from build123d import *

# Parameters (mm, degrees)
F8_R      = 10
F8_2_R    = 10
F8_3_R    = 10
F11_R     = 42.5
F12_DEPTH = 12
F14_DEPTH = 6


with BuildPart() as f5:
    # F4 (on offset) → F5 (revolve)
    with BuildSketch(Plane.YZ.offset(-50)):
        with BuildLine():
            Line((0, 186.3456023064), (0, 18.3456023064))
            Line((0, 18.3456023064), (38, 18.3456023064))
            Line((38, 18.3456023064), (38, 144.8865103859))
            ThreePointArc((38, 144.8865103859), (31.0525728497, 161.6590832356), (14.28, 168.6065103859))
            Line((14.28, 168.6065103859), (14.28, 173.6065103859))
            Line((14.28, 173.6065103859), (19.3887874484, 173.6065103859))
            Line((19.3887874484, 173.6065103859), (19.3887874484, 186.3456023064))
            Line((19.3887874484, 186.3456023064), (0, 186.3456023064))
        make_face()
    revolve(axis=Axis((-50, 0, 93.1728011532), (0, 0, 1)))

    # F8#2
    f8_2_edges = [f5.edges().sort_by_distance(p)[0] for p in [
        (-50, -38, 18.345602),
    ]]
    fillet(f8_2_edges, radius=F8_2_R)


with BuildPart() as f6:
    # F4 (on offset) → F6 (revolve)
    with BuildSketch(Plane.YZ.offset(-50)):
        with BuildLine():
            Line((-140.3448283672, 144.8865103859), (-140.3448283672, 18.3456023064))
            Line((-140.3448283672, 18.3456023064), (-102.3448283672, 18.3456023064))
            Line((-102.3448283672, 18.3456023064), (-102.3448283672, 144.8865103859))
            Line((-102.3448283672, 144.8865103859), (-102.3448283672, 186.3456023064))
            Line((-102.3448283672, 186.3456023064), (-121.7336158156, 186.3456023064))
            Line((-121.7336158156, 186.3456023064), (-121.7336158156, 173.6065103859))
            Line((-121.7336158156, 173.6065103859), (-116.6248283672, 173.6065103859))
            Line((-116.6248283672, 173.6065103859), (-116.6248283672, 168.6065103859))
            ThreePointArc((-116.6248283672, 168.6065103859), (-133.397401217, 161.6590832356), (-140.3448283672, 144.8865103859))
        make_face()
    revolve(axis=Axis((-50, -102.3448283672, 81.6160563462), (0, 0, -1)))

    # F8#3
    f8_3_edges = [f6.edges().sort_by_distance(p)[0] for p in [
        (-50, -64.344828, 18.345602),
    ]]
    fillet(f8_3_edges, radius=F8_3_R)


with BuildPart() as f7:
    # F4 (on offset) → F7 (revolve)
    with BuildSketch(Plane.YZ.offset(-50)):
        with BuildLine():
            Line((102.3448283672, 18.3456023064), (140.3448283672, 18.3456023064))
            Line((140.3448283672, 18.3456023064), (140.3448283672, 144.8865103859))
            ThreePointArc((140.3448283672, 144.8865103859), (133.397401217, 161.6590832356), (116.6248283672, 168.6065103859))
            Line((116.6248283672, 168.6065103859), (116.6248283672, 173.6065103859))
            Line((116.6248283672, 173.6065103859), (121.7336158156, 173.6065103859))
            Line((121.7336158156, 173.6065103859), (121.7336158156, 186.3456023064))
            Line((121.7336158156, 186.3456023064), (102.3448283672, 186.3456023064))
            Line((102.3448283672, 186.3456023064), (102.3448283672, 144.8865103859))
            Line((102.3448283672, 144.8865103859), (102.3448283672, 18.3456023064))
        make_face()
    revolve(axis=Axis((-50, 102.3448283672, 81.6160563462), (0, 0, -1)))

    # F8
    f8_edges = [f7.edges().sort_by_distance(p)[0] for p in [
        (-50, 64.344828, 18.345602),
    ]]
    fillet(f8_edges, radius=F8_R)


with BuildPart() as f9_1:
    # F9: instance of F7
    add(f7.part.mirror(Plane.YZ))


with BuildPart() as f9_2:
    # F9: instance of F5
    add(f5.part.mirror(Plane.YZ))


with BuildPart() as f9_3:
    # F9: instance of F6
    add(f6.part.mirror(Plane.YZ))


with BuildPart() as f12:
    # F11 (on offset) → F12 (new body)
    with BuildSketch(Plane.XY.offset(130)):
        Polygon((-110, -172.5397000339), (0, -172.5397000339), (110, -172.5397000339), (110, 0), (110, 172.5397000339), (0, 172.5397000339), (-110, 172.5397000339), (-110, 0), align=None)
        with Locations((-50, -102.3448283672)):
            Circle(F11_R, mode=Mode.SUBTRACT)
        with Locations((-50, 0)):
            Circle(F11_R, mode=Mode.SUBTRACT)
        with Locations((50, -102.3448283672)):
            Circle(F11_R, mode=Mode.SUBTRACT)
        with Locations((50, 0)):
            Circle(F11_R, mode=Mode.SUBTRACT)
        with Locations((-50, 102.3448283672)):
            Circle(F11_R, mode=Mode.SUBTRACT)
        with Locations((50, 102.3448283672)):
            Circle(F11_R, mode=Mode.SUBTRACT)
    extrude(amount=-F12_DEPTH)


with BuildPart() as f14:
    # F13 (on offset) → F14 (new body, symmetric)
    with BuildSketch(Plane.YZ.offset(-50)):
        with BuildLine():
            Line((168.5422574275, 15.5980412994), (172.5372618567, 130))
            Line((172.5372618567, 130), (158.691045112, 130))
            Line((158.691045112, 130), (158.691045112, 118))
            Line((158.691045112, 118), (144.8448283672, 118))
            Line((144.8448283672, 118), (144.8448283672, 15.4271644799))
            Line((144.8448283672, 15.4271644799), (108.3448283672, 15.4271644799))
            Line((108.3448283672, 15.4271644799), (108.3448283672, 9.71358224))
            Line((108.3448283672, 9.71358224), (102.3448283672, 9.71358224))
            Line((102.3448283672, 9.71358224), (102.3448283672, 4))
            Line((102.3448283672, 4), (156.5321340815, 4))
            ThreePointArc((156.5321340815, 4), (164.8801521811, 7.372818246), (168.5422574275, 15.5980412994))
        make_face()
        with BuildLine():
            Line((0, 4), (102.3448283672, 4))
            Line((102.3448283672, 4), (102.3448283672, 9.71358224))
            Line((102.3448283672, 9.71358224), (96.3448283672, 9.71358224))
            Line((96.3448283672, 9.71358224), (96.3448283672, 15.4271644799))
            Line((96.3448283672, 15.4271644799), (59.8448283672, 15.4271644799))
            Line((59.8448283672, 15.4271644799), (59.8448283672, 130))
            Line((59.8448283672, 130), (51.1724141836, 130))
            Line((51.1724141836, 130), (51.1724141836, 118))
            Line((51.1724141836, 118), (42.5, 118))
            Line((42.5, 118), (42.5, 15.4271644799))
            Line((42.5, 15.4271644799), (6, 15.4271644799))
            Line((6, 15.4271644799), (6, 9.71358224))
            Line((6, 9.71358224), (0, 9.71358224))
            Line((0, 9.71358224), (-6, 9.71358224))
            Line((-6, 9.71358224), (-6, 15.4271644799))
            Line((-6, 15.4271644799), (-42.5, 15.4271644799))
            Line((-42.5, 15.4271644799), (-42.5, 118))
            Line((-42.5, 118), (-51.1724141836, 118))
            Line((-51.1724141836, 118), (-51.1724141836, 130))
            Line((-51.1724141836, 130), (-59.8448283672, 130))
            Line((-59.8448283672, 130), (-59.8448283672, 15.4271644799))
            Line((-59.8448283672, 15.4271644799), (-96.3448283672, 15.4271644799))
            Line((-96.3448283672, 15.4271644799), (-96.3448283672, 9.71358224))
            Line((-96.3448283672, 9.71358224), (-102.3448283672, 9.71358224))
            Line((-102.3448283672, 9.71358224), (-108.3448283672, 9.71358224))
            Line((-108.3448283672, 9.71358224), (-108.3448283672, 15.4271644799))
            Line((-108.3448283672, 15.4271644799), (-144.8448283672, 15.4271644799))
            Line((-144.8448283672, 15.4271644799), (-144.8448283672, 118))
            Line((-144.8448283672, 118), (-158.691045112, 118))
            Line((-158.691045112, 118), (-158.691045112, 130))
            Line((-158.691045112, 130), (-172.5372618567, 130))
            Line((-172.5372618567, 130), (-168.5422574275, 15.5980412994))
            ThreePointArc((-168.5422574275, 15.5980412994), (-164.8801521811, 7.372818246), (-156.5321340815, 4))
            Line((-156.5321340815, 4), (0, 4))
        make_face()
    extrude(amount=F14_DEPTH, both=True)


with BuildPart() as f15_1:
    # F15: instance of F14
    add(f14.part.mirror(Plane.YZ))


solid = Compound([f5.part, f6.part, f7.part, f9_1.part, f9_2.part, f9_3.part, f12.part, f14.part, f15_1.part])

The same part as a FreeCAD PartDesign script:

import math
import FreeCAD as App
import Part
import Sketcher
Q = App.Units.Quantity


def edges_at(feature, points):
    """Names of the edges that pass closest to the given points."""
    edges = feature.Shape.Edges
    near = lambda p: min(range(len(edges)), key=lambda i: edges[i].distToShape(Part.Vertex(*p))[0])
    return sorted({f"Edge{near(p) + 1}" for p in points})

doc = App.newDocument("Part")
body = doc.addObject("PartDesign::Body", "Body")

# Sketch on YZ plane
sketch1 = doc.addObject("Sketcher::SketchObject", "Sketch")
body.addObject(sketch1)
sketch1.AttachmentSupport = (doc.YZ_Plane, [""])
sketch1.MapMode = "FlatFace"
sketch1.AttachmentOffset = App.Placement(App.Vector(0, 0, -50), App.Rotation())
sketch1.addGeometry([
    Part.LineSegment(App.Vector(0, 186.345602, 0), App.Vector(0, 18.345602, 0)),  # 0
    Part.LineSegment(App.Vector(0, 18.345602, 0), App.Vector(38, 18.345602, 0)),  # 1
    Part.LineSegment(App.Vector(38, 18.345602, 0), App.Vector(38, 144.88651, 0)),  # 2
    Part.ArcOfCircle(Part.Circle(App.Vector(14.28, 144.88651, 0), App.Vector(0, 0, 1), 23.72), math.radians(0), math.radians(90)),  # 3
    Part.LineSegment(App.Vector(14.28, 168.60651, 0), App.Vector(14.28, 173.60651, 0)),  # 4
    Part.LineSegment(App.Vector(14.28, 173.60651, 0), App.Vector(19.388787, 173.60651, 0)),  # 5
    Part.LineSegment(App.Vector(19.388787, 173.60651, 0), App.Vector(19.388787, 186.345602, 0)),  # 6
    Part.LineSegment(App.Vector(19.388787, 186.345602, 0), App.Vector(0, 186.345602, 0)),  # 7
], False)
sketch1.addConstraint([
    Sketcher.Constraint("Coincident", 0, 2, 1, 1),
    Sketcher.Constraint("Coincident", 1, 2, 2, 1),
    Sketcher.Constraint("Tangent", 2, 2, 3, 1),
    Sketcher.Constraint("Coincident", 3, 2, 4, 1),
    Sketcher.Constraint("Coincident", 4, 2, 5, 1),
    Sketcher.Constraint("Coincident", 5, 2, 6, 1),
    Sketcher.Constraint("Coincident", 6, 2, 7, 1),
    Sketcher.Constraint("Coincident", 7, 2, 0, 1),
    Sketcher.Constraint("Vertical", 0),
    Sketcher.Constraint("Horizontal", 1),
    Sketcher.Constraint("Vertical", 2),
    Sketcher.Constraint("Vertical", 4),
    Sketcher.Constraint("Horizontal", 5),
    Sketcher.Constraint("Vertical", 6),
    Sketcher.Constraint("Horizontal", 7),
    Sketcher.Constraint("PointOnObject", 0, 2, -2),
    Sketcher.Constraint("DistanceX", 1, 1, 1, 2, Q("38 mm")),
    Sketcher.Constraint("DistanceY", 0, 2, 0, 1, Q("168 mm")),
    Sketcher.Constraint("DistanceY", 4, 1, 4, 2, Q("5 mm")),
    Sketcher.Constraint("Radius", 3, Q("23.72 mm")),
    Sketcher.Constraint("DistanceX", -1, 1, 3, 2, Q("14.28 mm")),
    Sketcher.Constraint("DistanceY", 2, 1, 2, 2, Q("126.540908 mm")),
    Sketcher.Constraint("DistanceX", 5, 1, 5, 2, Q("5.108787 mm")),
    Sketcher.Constraint("DistanceY", -1, 1, 3, 3, Q("144.88651 mm")),
])
revolution = doc.addObject("PartDesign::Revolution", "Revolution")
body.addObject(revolution)
revolution.Profile = sketch1
revolution.ReferenceAxis = (sketch1, ["V_Axis"])
revolution.Angle = 360
doc.recompute()

fillet = doc.addObject("PartDesign::Fillet", "Fillet")
body.addObject(fillet)
fillet.Base = (revolution, edges_at(revolution, [(-50, -38, 18.346)]))
fillet.Radius = 10
body2 = doc.addObject("PartDesign::Body", "Body001")

# Sketch on YZ plane
sketch2 = doc.addObject("Sketcher::SketchObject", "Sketch001")
body2.addObject(sketch2)
sketch2.AttachmentSupport = (doc.getObject("YZ_Plane001"), [""])
sketch2.MapMode = "FlatFace"
sketch2.AttachmentOffset = App.Placement(App.Vector(0, 0, -50), App.Rotation())
sketch2.addGeometry([
    Part.LineSegment(App.Vector(-140.344828, 144.88651, 0), App.Vector(-140.344828, 18.345602, 0)),  # 0
    Part.LineSegment(App.Vector(-140.344828, 18.345602, 0), App.Vector(-102.344828, 18.345602, 0)),  # 1
    Part.LineSegment(App.Vector(-102.344828, 18.345602, 0), App.Vector(-102.344828, 186.345602, 0)),  # 2
    Part.LineSegment(App.Vector(-102.344828, 186.345602, 0), App.Vector(-121.733616, 186.345602, 0)),  # 3
    Part.LineSegment(App.Vector(-121.733616, 186.345602, 0), App.Vector(-121.733616, 173.60651, 0)),  # 4
    Part.LineSegment(App.Vector(-121.733616, 173.60651, 0), App.Vector(-116.624828, 173.60651, 0)),  # 5
    Part.LineSegment(App.Vector(-116.624828, 173.60651, 0), App.Vector(-116.624828, 168.60651, 0)),  # 6
    Part.ArcOfCircle(Part.Circle(App.Vector(-116.624828, 144.88651, 0), App.Vector(0, 0, 1), 23.72), math.radians(90), math.radians(180)),  # 7
], False)
sketch2.addGeometry(Part.LineSegment(App.Vector(-102.344828, 186.345602, 0), App.Vector(-102.344828, 18.345602, 0)), True)  # axis
sketch2.addConstraint([
    Sketcher.Constraint("Coincident", 0, 2, 1, 1),
    Sketcher.Constraint("Coincident", 1, 2, 2, 1),
    Sketcher.Constraint("Coincident", 2, 2, 3, 1),
    Sketcher.Constraint("Coincident", 3, 2, 4, 1),
    Sketcher.Constraint("Coincident", 4, 2, 5, 1),
    Sketcher.Constraint("Coincident", 5, 2, 6, 1),
    Sketcher.Constraint("Coincident", 6, 2, 7, 1),
    Sketcher.Constraint("Tangent", 7, 2, 0, 1),
    Sketcher.Constraint("Vertical", 0),
    Sketcher.Constraint("Horizontal", 1),
    Sketcher.Constraint("Vertical", 2),
    Sketcher.Constraint("Horizontal", 3),
    Sketcher.Constraint("Vertical", 4),
    Sketcher.Constraint("Horizontal", 5),
    Sketcher.Constraint("Vertical", 6),
    Sketcher.Constraint("Vertical", 8),
    Sketcher.Constraint("Coincident", 8, 1, 2, 2),
    Sketcher.Constraint("Horizontal", 0, 2, 8, 2),
    Sketcher.Constraint("Vertical", 7, 3, 5, 2),
    Sketcher.Constraint("DistanceX", 1, 1, 1, 2, Q("38 mm")),
    Sketcher.Constraint("DistanceY", 2, 1, 2, 2, Q("168 mm")),
    Sketcher.Constraint("DistanceY", 6, 2, 6, 1, Q("5 mm")),
    Sketcher.Constraint("Radius", 7, Q("23.72 mm")),
    Sketcher.Constraint("DistanceY", 0, 2, 0, 1, Q("126.540908 mm")),
    Sketcher.Constraint("DistanceX", 3, 2, 3, 1, Q("19.388787 mm")),
    Sketcher.Constraint("DistanceX", 7, 3, -1, 1, Q("116.624828 mm")),
    Sketcher.Constraint("DistanceY", -1, 1, 7, 3, Q("144.88651 mm")),
])
revolution2 = doc.addObject("PartDesign::Revolution", "Revolution001")
body2.addObject(revolution2)
revolution2.Profile = sketch2
revolution2.ReferenceAxis = (sketch2, ["Axis0"])
revolution2.Angle = 360
doc.recompute()

fillet2 = doc.addObject("PartDesign::Fillet", "Fillet001")
body2.addObject(fillet2)
fillet2.Base = (revolution2, edges_at(revolution2, [(-50, -64.345, 18.346)]))
fillet2.Radius = 10
body3 = doc.addObject("PartDesign::Body", "Body002")

# Sketch on YZ plane
sketch3 = doc.addObject("Sketcher::SketchObject", "Sketch002")
body3.addObject(sketch3)
sketch3.AttachmentSupport = (doc.getObject("YZ_Plane002"), [""])
sketch3.MapMode = "FlatFace"
sketch3.AttachmentOffset = App.Placement(App.Vector(0, 0, -50), App.Rotation())
sketch3.addGeometry([
    Part.LineSegment(App.Vector(102.344828, 18.345602, 0), App.Vector(140.344828, 18.345602, 0)),  # 0
    Part.LineSegment(App.Vector(140.344828, 18.345602, 0), App.Vector(140.344828, 144.88651, 0)),  # 1
    Part.ArcOfCircle(Part.Circle(App.Vector(116.624828, 144.88651, 0), App.Vector(0, 0, 1), 23.72), math.radians(0), math.radians(90)),  # 2
    Part.LineSegment(App.Vector(116.624828, 168.60651, 0), App.Vector(116.624828, 173.60651, 0)),  # 3
    Part.LineSegment(App.Vector(116.624828, 173.60651, 0), App.Vector(121.733616, 173.60651, 0)),  # 4
    Part.LineSegment(App.Vector(121.733616, 173.60651, 0), App.Vector(121.733616, 186.345602, 0)),  # 5
    Part.LineSegment(App.Vector(121.733616, 186.345602, 0), App.Vector(102.344828, 186.345602, 0)),  # 6
    Part.LineSegment(App.Vector(102.344828, 186.345602, 0), App.Vector(102.344828, 18.345602, 0)),  # 7
], False)
sketch3.addGeometry(Part.LineSegment(App.Vector(102.344828, 186.345602, 0), App.Vector(102.344828, 18.345602, 0)), True)  # axis
sketch3.addConstraint([
    Sketcher.Constraint("Coincident", 0, 2, 1, 1),
    Sketcher.Constraint("Tangent", 1, 2, 2, 1),
    Sketcher.Constraint("Coincident", 2, 2, 3, 1),
    Sketcher.Constraint("Coincident", 3, 2, 4, 1),
    Sketcher.Constraint("Coincident", 4, 2, 5, 1),
    Sketcher.Constraint("Coincident", 5, 2, 6, 1),
    Sketcher.Constraint("Coincident", 6, 2, 7, 1),
    Sketcher.Constraint("Coincident", 7, 2, 0, 1),
    Sketcher.Constraint("Horizontal", 0),
    Sketcher.Constraint("Vertical", 1),
    Sketcher.Constraint("Vertical", 3),
    Sketcher.Constraint("Horizontal", 4),
    Sketcher.Constraint("Vertical", 5),
    Sketcher.Constraint("Horizontal", 6),
    Sketcher.Constraint("Vertical", 7),
    Sketcher.Constraint("Vertical", 8),
    Sketcher.Constraint("Coincident", 8, 1, 6, 2),
    Sketcher.Constraint("Horizontal", 0, 2, 8, 2),
    Sketcher.Constraint("DistanceX", 0, 1, 0, 2, Q("38 mm")),
    Sketcher.Constraint("DistanceY", 3, 1, 3, 2, Q("5 mm")),
    Sketcher.Constraint("DistanceY", 7, 2, 7, 1, Q("168 mm")),
    Sketcher.Constraint("Radius", 2, Q("23.72 mm")),
    Sketcher.Constraint("DistanceX", 2, 2, 1, 2, Q("23.72 mm")),
    Sketcher.Constraint("DistanceY", 1, 1, 1, 2, Q("126.540908 mm")),
    Sketcher.Constraint("DistanceX", 4, 1, 4, 2, Q("5.108787 mm")),
    Sketcher.Constraint("DistanceX", -1, 1, 2, 3, Q("116.624828 mm")),
    Sketcher.Constraint("DistanceY", -1, 1, 2, 3, Q("144.88651 mm")),
])
revolution3 = doc.addObject("PartDesign::Revolution", "Revolution002")
body3.addObject(revolution3)
revolution3.Profile = sketch3
revolution3.ReferenceAxis = (sketch3, ["Axis0"])
revolution3.Angle = 360
doc.recompute()

fillet3 = doc.addObject("PartDesign::Fillet", "Fillet002")
body3.addObject(fillet3)
fillet3.Base = (revolution3, edges_at(revolution3, [(-50, 64.345, 18.346)]))
fillet3.Radius = 10
body4 = doc.addObject("PartDesign::Body", "Body003")
doc.recompute()

mirroring = doc.addObject("Part::Mirroring", "Mirroring")
mirroring.Source = body3
mirroring.Base = App.Vector(0, 0, 0)
mirroring.Normal = App.Vector(1, 0, 0)
body4.BaseFeature = mirroring
doc.recompute()
body5 = doc.addObject("PartDesign::Body", "Body004")
doc.recompute()

mirroring2 = doc.addObject("Part::Mirroring", "Mirroring001")
mirroring2.Source = body
mirroring2.Base = App.Vector(0, 0, 0)
mirroring2.Normal = App.Vector(1, 0, 0)
body5.BaseFeature = mirroring2
doc.recompute()
body6 = doc.addObject("PartDesign::Body", "Body005")
doc.recompute()

mirroring3 = doc.addObject("Part::Mirroring", "Mirroring002")
mirroring3.Source = body2
mirroring3.Base = App.Vector(0, 0, 0)
mirroring3.Normal = App.Vector(1, 0, 0)
body6.BaseFeature = mirroring3
doc.recompute()
body7 = doc.addObject("PartDesign::Body", "Body006")

# Sketch on XY plane
sketch4 = doc.addObject("Sketcher::SketchObject", "Sketch003")
body7.addObject(sketch4)
sketch4.AttachmentSupport = (doc.getObject("XY_Plane006"), [""])
sketch4.MapMode = "FlatFace"
sketch4.AttachmentOffset = App.Placement(App.Vector(0, 0, 130), App.Rotation())
sketch4.addGeometry([
    Part.LineSegment(App.Vector(-110, -172.5397, 0), App.Vector(110, -172.5397, 0)),  # 0
    Part.LineSegment(App.Vector(110, -172.5397, 0), App.Vector(110, 172.5397, 0)),  # 1
    Part.LineSegment(App.Vector(110, 172.5397, 0), App.Vector(-110, 172.5397, 0)),  # 2
    Part.LineSegment(App.Vector(-110, 172.5397, 0), App.Vector(-110, -172.5397, 0)),  # 3
    Part.Circle(App.Vector(-50, -102.344828, 0), App.Vector(0, 0, 1), 42.5),  # 4
    Part.Circle(App.Vector(50, -102.344828, 0), App.Vector(0, 0, 1), 42.5),  # 5
    Part.Circle(App.Vector(-50, 0, 0), App.Vector(0, 0, 1), 42.5),  # 6
    Part.Circle(App.Vector(-50, 102.344828, 0), App.Vector(0, 0, 1), 42.5),  # 7
    Part.Circle(App.Vector(50, 0, 0), App.Vector(0, 0, 1), 42.5),  # 8
    Part.Circle(App.Vector(50, 102.344828, 0), App.Vector(0, 0, 1), 42.5),  # 9
], False)
sketch4.addConstraint([
    Sketcher.Constraint("Coincident", 0, 2, 1, 1),
    Sketcher.Constraint("Coincident", 1, 2, 2, 1),
    Sketcher.Constraint("Coincident", 2, 2, 3, 1),
    Sketcher.Constraint("Coincident", 3, 2, 0, 1),
    Sketcher.Constraint("Horizontal", 0),
    Sketcher.Constraint("Vertical", 1),
    Sketcher.Constraint("Horizontal", 2),
    Sketcher.Constraint("Vertical", 3),
    Sketcher.Constraint("Equal", 4, 5),
    Sketcher.Constraint("Equal", 5, 6),
    Sketcher.Constraint("Equal", 6, 7),
    Sketcher.Constraint("Equal", 7, 8),
    Sketcher.Constraint("Equal", 8, 9),
    Sketcher.Constraint("Symmetric", 5, 3, 7, 3, -1, 1),
    Sketcher.Constraint("Symmetric", 6, 3, 8, 3, -1, 1),
    Sketcher.Constraint("Symmetric", 4, 3, 9, 3, -1, 1),
    Sketcher.Constraint("Symmetric", 0, 2, 2, 2, -1, 1),
    Sketcher.Constraint("Symmetric", 4, 3, 5, 3, -2),
    Sketcher.Constraint("PointOnObject", 6, 3, -1),
    Sketcher.Constraint("Vertical", 4, 3, 6, 3),
    Sketcher.Constraint("Diameter", 4, Q("85 mm")),
    Sketcher.Constraint("DistanceX", 0, 1, 0, 2, Q("220 mm")),
    Sketcher.Constraint("DistanceX", 4, 3, -1, 1, Q("50 mm")),
    Sketcher.Constraint("DistanceY", 1, 1, 1, 2, Q("345.0794 mm")),
    Sketcher.Constraint("DistanceY", 4, 3, -1, 1, Q("102.344828 mm")),
])
pad1 = doc.addObject("PartDesign::Pad", "Pad")
body7.addObject(pad1)
pad1.Profile = sketch4
pad1.Length = 12
pad1.Reversed = True
body8 = doc.addObject("PartDesign::Body", "Body007")

# Sketch on YZ plane
sketch5 = doc.addObject("Sketcher::SketchObject", "Sketch004")
body8.addObject(sketch5)
sketch5.AttachmentSupport = (doc.getObject("YZ_Plane007"), [""])
sketch5.MapMode = "FlatFace"
sketch5.AttachmentOffset = App.Placement(App.Vector(0, 0, -50), App.Rotation())
sketch5.addGeometry([
    Part.LineSegment(App.Vector(168.542257, 15.598041, 0), App.Vector(172.537262, 130, 0)),  # 0
    Part.LineSegment(App.Vector(172.537262, 130, 0), App.Vector(158.691045, 130, 0)),  # 1
    Part.LineSegment(App.Vector(158.691045, 130, 0), App.Vector(158.691045, 118, 0)),  # 2
    Part.LineSegment(App.Vector(158.691045, 118, 0), App.Vector(144.844828, 118, 0)),  # 3
    Part.LineSegment(App.Vector(144.844828, 118, 0), App.Vector(144.844828, 15.427164, 0)),  # 4
    Part.LineSegment(App.Vector(144.844828, 15.427164, 0), App.Vector(108.344828, 15.427164, 0)),  # 5
    Part.LineSegment(App.Vector(108.344828, 15.427164, 0), App.Vector(108.344828, 9.713582, 0)),  # 6
    Part.LineSegment(App.Vector(108.344828, 9.713582, 0), App.Vector(96.344828, 9.713582, 0)),  # 7
    Part.LineSegment(App.Vector(96.344828, 9.713582, 0), App.Vector(96.344828, 15.427164, 0)),  # 8
    Part.LineSegment(App.Vector(96.344828, 15.427164, 0), App.Vector(59.844828, 15.427164, 0)),  # 9
    Part.LineSegment(App.Vector(59.844828, 15.427164, 0), App.Vector(59.844828, 130, 0)),  # 10
    Part.LineSegment(App.Vector(59.844828, 130, 0), App.Vector(51.172414, 130, 0)),  # 11
    Part.LineSegment(App.Vector(51.172414, 130, 0), App.Vector(51.172414, 118, 0)),  # 12
    Part.LineSegment(App.Vector(51.172414, 118, 0), App.Vector(42.5, 118, 0)),  # 13
    Part.LineSegment(App.Vector(42.5, 118, 0), App.Vector(42.5, 15.427164, 0)),  # 14
    Part.LineSegment(App.Vector(42.5, 15.427164, 0), App.Vector(6, 15.427164, 0)),  # 15
    Part.LineSegment(App.Vector(6, 15.427164, 0), App.Vector(6, 9.713582, 0)),  # 16
    Part.LineSegment(App.Vector(6, 9.713582, 0), App.Vector(-6, 9.713582, 0)),  # 17
    Part.LineSegment(App.Vector(-6, 9.713582, 0), App.Vector(-6, 15.427164, 0)),  # 18
    Part.LineSegment(App.Vector(-6, 15.427164, 0), App.Vector(-42.5, 15.427164, 0)),  # 19
    Part.LineSegment(App.Vector(-42.5, 15.427164, 0), App.Vector(-42.5, 118, 0)),  # 20
    Part.LineSegment(App.Vector(-42.5, 118, 0), App.Vector(-51.172414, 118, 0)),  # 21
    Part.LineSegment(App.Vector(-51.172414, 118, 0), App.Vector(-51.172414, 130, 0)),  # 22
    Part.LineSegment(App.Vector(-51.172414, 130, 0), App.Vector(-59.844828, 130, 0)),  # 23
    Part.LineSegment(App.Vector(-59.844828, 130, 0), App.Vector(-59.844828, 15.427164, 0)),  # 24
    Part.LineSegment(App.Vector(-59.844828, 15.427164, 0), App.Vector(-96.344828, 15.427164, 0)),  # 25
    Part.LineSegment(App.Vector(-96.344828, 15.427164, 0), App.Vector(-96.344828, 9.713582, 0)),  # 26
    Part.LineSegment(App.Vector(-96.344828, 9.713582, 0), App.Vector(-108.344828, 9.713582, 0)),  # 27
    Part.LineSegment(App.Vector(-108.344828, 9.713582, 0), App.Vector(-108.344828, 15.427164, 0)),  # 28
    Part.LineSegment(App.Vector(-108.344828, 15.427164, 0), App.Vector(-144.844828, 15.427164, 0)),  # 29
    Part.LineSegment(App.Vector(-144.844828, 15.427164, 0), App.Vector(-144.844828, 118, 0)),  # 30
    Part.LineSegment(App.Vector(-144.844828, 118, 0), App.Vector(-158.691045, 118, 0)),  # 31
    Part.LineSegment(App.Vector(-158.691045, 118, 0), App.Vector(-158.691045, 130, 0)),  # 32
    Part.LineSegment(App.Vector(-158.691045, 130, 0), App.Vector(-172.537262, 130, 0)),  # 33
    Part.LineSegment(App.Vector(-172.537262, 130, 0), App.Vector(-168.542257, 15.598041, 0)),  # 34
    Part.ArcOfCircle(Part.Circle(App.Vector(-156.532134, 16.017444, 0), App.Vector(0, 0, 1), 12.017444), math.radians(-178), math.radians(-90)),  # 35
    Part.LineSegment(App.Vector(-156.532134, 4, 0), App.Vector(156.532134, 4, 0)),  # 36
    Part.ArcOfCircle(Part.Circle(App.Vector(156.532134, 16.017444, 0), App.Vector(0, 0, 1), 12.017444), math.radians(-90), math.radians(-2)),  # 37
], False)
sketch5.addConstraint([
    Sketcher.Constraint("Coincident", 0, 2, 1, 1),
    Sketcher.Constraint("Coincident", 1, 2, 2, 1),
    Sketcher.Constraint("Coincident", 2, 2, 3, 1),
    Sketcher.Constraint("Coincident", 3, 2, 4, 1),
    Sketcher.Constraint("Coincident", 4, 2, 5, 1),
    Sketcher.Constraint("Coincident", 5, 2, 6, 1),
    Sketcher.Constraint("Coincident", 6, 2, 7, 1),
    Sketcher.Constraint("Coincident", 7, 2, 8, 1),
    Sketcher.Constraint("Coincident", 8, 2, 9, 1),
    Sketcher.Constraint("Coincident", 9, 2, 10, 1),
    Sketcher.Constraint("Coincident", 10, 2, 11, 1),
    Sketcher.Constraint("Coincident", 11, 2, 12, 1),
    Sketcher.Constraint("Coincident", 12, 2, 13, 1),
    Sketcher.Constraint("Coincident", 13, 2, 14, 1),
    Sketcher.Constraint("Coincident", 14, 2, 15, 1),
    Sketcher.Constraint("Coincident", 15, 2, 16, 1),
    Sketcher.Constraint("Coincident", 16, 2, 17, 1),
    Sketcher.Constraint("Coincident", 17, 2, 18, 1),
    Sketcher.Constraint("Coincident", 18, 2, 19, 1),
    Sketcher.Constraint("Coincident", 19, 2, 20, 1),
    Sketcher.Constraint("Coincident", 20, 2, 21, 1),
    Sketcher.Constraint("Coincident", 21, 2, 22, 1),
    Sketcher.Constraint("Coincident", 22, 2, 23, 1),
    Sketcher.Constraint("Coincident", 23, 2, 24, 1),
    Sketcher.Constraint("Coincident", 24, 2, 25, 1),
    Sketcher.Constraint("Coincident", 25, 2, 26, 1),
    Sketcher.Constraint("Coincident", 26, 2, 27, 1),
    Sketcher.Constraint("Coincident", 27, 2, 28, 1),
    Sketcher.Constraint("Coincident", 28, 2, 29, 1),
    Sketcher.Constraint("Coincident", 29, 2, 30, 1),
    Sketcher.Constraint("Coincident", 30, 2, 31, 1),
    Sketcher.Constraint("Coincident", 31, 2, 32, 1),
    Sketcher.Constraint("Coincident", 32, 2, 33, 1),
    Sketcher.Constraint("Coincident", 33, 2, 34, 1),
    Sketcher.Constraint("Tangent", 34, 2, 35, 1),
    Sketcher.Constraint("Tangent", 35, 2, 36, 1),
    Sketcher.Constraint("Tangent", 36, 2, 37, 1),
    Sketcher.Constraint("Tangent", 37, 2, 0, 1),
    Sketcher.Constraint("Horizontal", 1),
    Sketcher.Constraint("Vertical", 2),
    Sketcher.Constraint("Horizontal", 3),
    Sketcher.Constraint("Vertical", 4),
    Sketcher.Constraint("Horizontal", 5),
    Sketcher.Constraint("Vertical", 6),
    Sketcher.Constraint("Horizontal", 7),
    Sketcher.Constraint("Vertical", 8),
    Sketcher.Constraint("Horizontal", 9),
    Sketcher.Constraint("Vertical", 10),
    Sketcher.Constraint("Horizontal", 11),
    Sketcher.Constraint("Vertical", 12),
    Sketcher.Constraint("Horizontal", 13),
    Sketcher.Constraint("Vertical", 14),
    Sketcher.Constraint("Horizontal", 15),
    Sketcher.Constraint("Vertical", 16),
    Sketcher.Constraint("Horizontal", 17),
    Sketcher.Constraint("Vertical", 18),
    Sketcher.Constraint("Horizontal", 19),
    Sketcher.Constraint("Vertical", 20),
    Sketcher.Constraint("Horizontal", 21),
    Sketcher.Constraint("Vertical", 22),
    Sketcher.Constraint("Horizontal", 23),
    Sketcher.Constraint("Vertical", 24),
    Sketcher.Constraint("Horizontal", 25),
    Sketcher.Constraint("Vertical", 26),
    Sketcher.Constraint("Horizontal", 27),
    Sketcher.Constraint("Vertical", 28),
    Sketcher.Constraint("Horizontal", 29),
    Sketcher.Constraint("Vertical", 30),
    Sketcher.Constraint("Horizontal", 31),
    Sketcher.Constraint("Vertical", 32),
    Sketcher.Constraint("Horizontal", 33),
    Sketcher.Constraint("Horizontal", 36),
    Sketcher.Constraint("Equal", 35, 37),
    Sketcher.Constraint("Symmetric", 15, 2, 18, 2, -2),
    Sketcher.Constraint("Symmetric", 13, 2, 20, 2, -2),
    Sketcher.Constraint("Symmetric", 11, 2, 22, 2, -2),
    Sketcher.Constraint("Symmetric", 9, 2, 24, 2, -2),
    Sketcher.Constraint("Symmetric", 7, 2, 26, 2, -2),
    Sketcher.Constraint("Symmetric", 5, 2, 28, 2, -2),
    Sketcher.Constraint("Symmetric", 3, 2, 30, 2, -2),
    Sketcher.Constraint("Symmetric", 1, 2, 32, 2, -2),
    Sketcher.Constraint("Symmetric", 34, 2, 37, 2, -2),
    Sketcher.Constraint("Horizontal", 5, 2, 8, 2),
    Sketcher.Constraint("Horizontal", 1, 2, 10, 2),
    Sketcher.Constraint("Horizontal", 3, 2, 12, 2),
    Sketcher.Constraint("Horizontal", 9, 2, 14, 2),
    Sketcher.Constraint("Horizontal", 7, 2, 16, 2),
    Sketcher.Constraint("Equal", 1, 3),
    Sketcher.Constraint("Equal", 5, 9),
    Sketcher.Constraint("Equal", 11, 13),
    Sketcher.Constraint("Equal", 9, 15),
    Sketcher.Constraint("Equal", 7, 17),
    Sketcher.Constraint("Equal", 27, 2),
    Sketcher.Constraint("DistanceX", 7, 2, 7, 1, Q("12 mm")),
    Sketcher.Constraint("Angle", 0, Q("88 deg")),
    Sketcher.Constraint("DistanceX", 5, 2, 5, 1, Q("36.5 mm")),
    Sketcher.Constraint("DistanceY", -1, 1, 0, 2, Q("130 mm")),
    Sketcher.Constraint("DistanceY", -1, 1, 35, 2, Q("4 mm")),
    Sketcher.Constraint("Radius", 35, Q("12.017444 mm")),
    Sketcher.Constraint("DistanceX", 36, 1, 36, 2, Q("313.064268 mm")),
    Sketcher.Constraint("DistanceX", 1, 2, 1, 1, Q("13.846217 mm")),
    Sketcher.Constraint("DistanceY", 4, 2, 4, 1, Q("102.572836 mm")),
    Sketcher.Constraint("DistanceY", 6, 2, 6, 1, Q("5.713582 mm")),
])
pad2 = doc.addObject("PartDesign::Pad", "Pad001")
body8.addObject(pad2)
pad2.Profile = sketch5
pad2.Length = 12
pad2.Midplane = True
body9 = doc.addObject("PartDesign::Body", "Body008")
doc.recompute()

mirroring4 = doc.addObject("Part::Mirroring", "Mirroring003")
mirroring4.Source = body8
mirroring4.Base = App.Vector(0, 0, 0)
mirroring4.Normal = App.Vector(1, 0, 0)
body9.BaseFeature = mirroring4
doc.recompute()
mirroring.Visibility = False
mirroring2.Visibility = False
mirroring3.Visibility = False
mirroring4.Visibility = False

doc.recompute()
